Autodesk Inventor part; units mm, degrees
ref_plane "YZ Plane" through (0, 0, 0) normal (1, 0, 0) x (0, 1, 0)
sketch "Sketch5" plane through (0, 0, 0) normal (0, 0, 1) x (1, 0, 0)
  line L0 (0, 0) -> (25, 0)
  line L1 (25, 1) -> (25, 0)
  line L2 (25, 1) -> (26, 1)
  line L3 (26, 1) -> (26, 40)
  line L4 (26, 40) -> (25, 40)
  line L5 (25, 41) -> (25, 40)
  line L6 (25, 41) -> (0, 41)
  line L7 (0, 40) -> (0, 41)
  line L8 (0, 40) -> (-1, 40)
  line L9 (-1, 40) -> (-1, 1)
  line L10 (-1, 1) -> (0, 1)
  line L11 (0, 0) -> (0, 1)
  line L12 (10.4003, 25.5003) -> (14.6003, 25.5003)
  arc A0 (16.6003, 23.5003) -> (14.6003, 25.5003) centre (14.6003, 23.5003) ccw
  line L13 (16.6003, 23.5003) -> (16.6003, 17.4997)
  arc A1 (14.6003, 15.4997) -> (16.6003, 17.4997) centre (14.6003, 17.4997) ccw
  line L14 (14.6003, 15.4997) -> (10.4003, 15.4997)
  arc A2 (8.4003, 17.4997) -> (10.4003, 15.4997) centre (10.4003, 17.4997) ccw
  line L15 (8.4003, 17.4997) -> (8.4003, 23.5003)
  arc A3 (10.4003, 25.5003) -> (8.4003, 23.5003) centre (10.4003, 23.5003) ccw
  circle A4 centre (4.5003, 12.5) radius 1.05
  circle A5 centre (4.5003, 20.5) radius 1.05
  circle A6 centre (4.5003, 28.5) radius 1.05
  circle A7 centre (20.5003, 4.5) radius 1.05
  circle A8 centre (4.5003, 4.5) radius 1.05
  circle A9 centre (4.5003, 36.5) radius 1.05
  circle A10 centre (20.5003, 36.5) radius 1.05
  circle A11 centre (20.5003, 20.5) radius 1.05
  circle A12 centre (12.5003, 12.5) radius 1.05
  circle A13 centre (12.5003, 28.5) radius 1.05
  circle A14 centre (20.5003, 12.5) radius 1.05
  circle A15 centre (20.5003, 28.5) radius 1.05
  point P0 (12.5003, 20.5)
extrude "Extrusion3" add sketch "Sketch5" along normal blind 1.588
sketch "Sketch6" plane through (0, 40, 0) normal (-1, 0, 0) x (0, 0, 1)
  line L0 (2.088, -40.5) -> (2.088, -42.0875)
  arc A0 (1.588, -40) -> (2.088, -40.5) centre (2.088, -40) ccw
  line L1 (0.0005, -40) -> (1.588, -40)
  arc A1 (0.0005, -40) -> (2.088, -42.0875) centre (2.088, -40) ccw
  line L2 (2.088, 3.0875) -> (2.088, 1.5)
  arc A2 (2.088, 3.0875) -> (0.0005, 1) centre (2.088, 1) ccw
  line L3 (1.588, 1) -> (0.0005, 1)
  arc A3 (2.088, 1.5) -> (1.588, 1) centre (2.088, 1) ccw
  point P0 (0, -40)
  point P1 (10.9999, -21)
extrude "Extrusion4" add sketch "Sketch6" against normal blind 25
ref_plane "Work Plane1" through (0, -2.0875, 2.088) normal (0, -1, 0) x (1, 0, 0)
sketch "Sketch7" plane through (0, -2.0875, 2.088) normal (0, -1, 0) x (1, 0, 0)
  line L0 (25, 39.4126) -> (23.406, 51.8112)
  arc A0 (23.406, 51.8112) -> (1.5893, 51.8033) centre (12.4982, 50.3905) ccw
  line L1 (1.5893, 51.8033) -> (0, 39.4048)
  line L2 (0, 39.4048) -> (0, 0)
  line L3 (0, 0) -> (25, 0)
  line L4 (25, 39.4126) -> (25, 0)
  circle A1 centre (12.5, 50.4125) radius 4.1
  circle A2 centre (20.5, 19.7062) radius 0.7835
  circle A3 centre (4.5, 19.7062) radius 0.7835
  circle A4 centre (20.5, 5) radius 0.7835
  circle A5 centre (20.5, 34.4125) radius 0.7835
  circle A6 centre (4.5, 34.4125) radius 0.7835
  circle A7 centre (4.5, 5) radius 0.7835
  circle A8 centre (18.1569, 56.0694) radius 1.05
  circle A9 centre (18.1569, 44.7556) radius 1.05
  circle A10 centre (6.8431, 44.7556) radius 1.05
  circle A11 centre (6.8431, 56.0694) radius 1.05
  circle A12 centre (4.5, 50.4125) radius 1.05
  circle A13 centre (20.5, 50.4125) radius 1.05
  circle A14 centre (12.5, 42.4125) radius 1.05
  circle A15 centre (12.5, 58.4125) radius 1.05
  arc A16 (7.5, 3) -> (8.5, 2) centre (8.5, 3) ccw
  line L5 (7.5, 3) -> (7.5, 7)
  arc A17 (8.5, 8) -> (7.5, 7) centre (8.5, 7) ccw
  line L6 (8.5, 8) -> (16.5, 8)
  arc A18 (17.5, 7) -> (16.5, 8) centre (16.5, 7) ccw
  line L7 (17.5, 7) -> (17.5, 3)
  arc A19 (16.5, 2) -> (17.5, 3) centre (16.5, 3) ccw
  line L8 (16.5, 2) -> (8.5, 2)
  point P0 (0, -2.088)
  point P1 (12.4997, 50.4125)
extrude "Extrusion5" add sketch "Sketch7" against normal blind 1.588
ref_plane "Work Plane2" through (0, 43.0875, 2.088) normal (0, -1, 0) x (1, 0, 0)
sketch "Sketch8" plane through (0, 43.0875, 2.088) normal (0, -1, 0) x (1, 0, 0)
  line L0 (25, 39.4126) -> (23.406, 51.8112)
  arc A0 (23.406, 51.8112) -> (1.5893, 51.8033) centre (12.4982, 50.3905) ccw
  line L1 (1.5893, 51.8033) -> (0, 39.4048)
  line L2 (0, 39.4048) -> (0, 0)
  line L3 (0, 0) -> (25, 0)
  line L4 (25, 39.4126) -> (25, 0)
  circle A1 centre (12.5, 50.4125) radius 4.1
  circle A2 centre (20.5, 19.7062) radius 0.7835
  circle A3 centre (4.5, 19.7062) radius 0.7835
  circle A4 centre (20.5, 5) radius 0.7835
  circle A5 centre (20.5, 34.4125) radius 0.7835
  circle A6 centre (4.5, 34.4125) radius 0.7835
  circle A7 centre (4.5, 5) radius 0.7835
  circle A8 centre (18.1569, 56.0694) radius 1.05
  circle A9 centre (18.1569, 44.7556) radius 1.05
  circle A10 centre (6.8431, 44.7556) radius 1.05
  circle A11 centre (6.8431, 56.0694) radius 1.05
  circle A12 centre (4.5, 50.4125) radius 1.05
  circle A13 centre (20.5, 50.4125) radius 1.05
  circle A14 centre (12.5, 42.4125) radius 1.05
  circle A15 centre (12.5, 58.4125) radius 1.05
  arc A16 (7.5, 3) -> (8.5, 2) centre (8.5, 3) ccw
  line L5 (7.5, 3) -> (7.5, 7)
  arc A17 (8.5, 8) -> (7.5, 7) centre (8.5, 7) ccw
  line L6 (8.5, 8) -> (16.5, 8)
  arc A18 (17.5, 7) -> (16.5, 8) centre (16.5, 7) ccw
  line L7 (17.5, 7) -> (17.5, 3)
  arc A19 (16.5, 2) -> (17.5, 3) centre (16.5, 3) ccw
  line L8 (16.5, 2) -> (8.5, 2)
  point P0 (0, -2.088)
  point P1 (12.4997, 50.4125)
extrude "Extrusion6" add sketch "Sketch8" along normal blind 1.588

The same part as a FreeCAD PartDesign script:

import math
import FreeCAD as App
import Part
import Sketcher

V = App.Vector


def add_polygon(sketch, points):
    """Adds a closed chain of lines whose ends are joined by coincident constraints."""
    first, n = sketch.GeometryCount, len(points)
    for a, b in zip(points, points[1:] + points[:1]):
        sketch.addGeometry(Part.LineSegment(App.Vector(*a, 0), App.Vector(*b, 0)), False)
    for i in range(n):
        sketch.addConstraint(Sketcher.Constraint("Coincident", first + i, 2, first + (i + 1) % n, 1))

doc = App.newDocument("Part")
body = doc.addObject("PartDesign::Body", "Body")

# Sketch on XY plane
sketch1 = body.newObject("Sketcher::SketchObject", "Sketch")
sketch1.AttachmentSupport = (doc.getObject("XY_Plane"), [""])
sketch1.MapMode = "FlatFace"
add_polygon(sketch1, [(0, 1), (0, 0), (25, 0), (25, 1), (26, 1), (26, 40), (25, 40), (25, 41), (0, 41), (0, 40), (-1, 40), (-1, 1)])  # lines 0-11
sketch1.addGeometry(Part.Circle(V(4.5003, 4.5, 0), V(0, 0, 1), 1.05), False)  # 12
sketch1.addGeometry(Part.Circle(V(4.5003, 12.5, 0), V(0, 0, 1), 1.05), False)  # 13
sketch1.addGeometry(Part.Circle(V(20.5003, 4.5, 0), V(0, 0, 1), 1.05), False)  # 14
sketch1.addGeometry(Part.Circle(V(12.5003, 12.5, 0), V(0, 0, 1), 1.05), False)  # 15
sketch1.addGeometry(Part.Circle(V(20.5003, 12.5, 0), V(0, 0, 1), 1.05), False)  # 16
sketch1.addGeometry(Part.Circle(V(4.5003, 20.5, 0), V(0, 0, 1), 1.05), False)  # 17
sketch1.addGeometry(Part.Circle(V(4.5003, 28.5, 0), V(0, 0, 1), 1.05), False)  # 18
sketch1.addGeometry(Part.Circle(V(4.5003, 36.5, 0), V(0, 0, 1), 1.05), False)  # 19
sketch1.addGeometry(Part.ArcOfCircle(Part.Circle(V(10.4003, 23.5003, 0), V(0, 0, 1), 2), math.radians(90), math.radians(180)), False)  # 20
sketch1.addGeometry(Part.LineSegment(V(10.4003, 25.5003, 0), V(14.6003, 25.5003, 0)), False)  # 21
sketch1.addGeometry(Part.ArcOfCircle(Part.Circle(V(14.6003, 23.5003, 0), V(0, 0, 1), 2), math.radians(0), math.radians(90)), False)  # 22
sketch1.addGeometry(Part.LineSegment(V(16.6003, 23.5003, 0), V(16.6003, 17.4997, 0)), False)  # 23
sketch1.addGeometry(Part.ArcOfCircle(Part.Circle(V(14.6003, 17.4997, 0), V(0, 0, 1), 2), math.radians(-90), math.radians(0)), False)  # 24
sketch1.addGeometry(Part.LineSegment(V(14.6003, 15.4997, 0), V(10.4003, 15.4997, 0)), False)  # 25
sketch1.addGeometry(Part.ArcOfCircle(Part.Circle(V(10.4003, 17.4997, 0), V(0, 0, 1), 2), math.radians(180), math.radians(270)), False)  # 26
sketch1.addGeometry(Part.LineSegment(V(8.4003, 17.4997, 0), V(8.4003, 23.5003, 0)), False)  # 27
sketch1.addGeometry(Part.Circle(V(12.5003, 28.5, 0), V(0, 0, 1), 1.05), False)  # 28
sketch1.addGeometry(Part.Circle(V(20.5003, 20.5, 0), V(0, 0, 1), 1.05), False)  # 29
sketch1.addGeometry(Part.Circle(V(20.5003, 28.5, 0), V(0, 0, 1), 1.05), False)  # 30
sketch1.addGeometry(Part.Circle(V(20.5003, 36.5, 0), V(0, 0, 1), 1.05), False)  # 31
sketch1.addConstraint(Sketcher.Constraint("Tangent", 20, 1, 21, 1))
sketch1.addConstraint(Sketcher.Constraint("Tangent", 21, 2, 22, 2))
sketch1.addConstraint(Sketcher.Constraint("Tangent", 22, 1, 23, 1))
sketch1.addConstraint(Sketcher.Constraint("Tangent", 23, 2, 24, 2))
sketch1.addConstraint(Sketcher.Constraint("Tangent", 24, 1, 25, 1))
sketch1.addConstraint(Sketcher.Constraint("Tangent", 25, 2, 26, 2))
sketch1.addConstraint(Sketcher.Constraint("Tangent", 26, 1, 27, 1))
sketch1.addConstraint(Sketcher.Constraint("Tangent", 27, 2, 20, 2))
sketch1.addConstraint(Sketcher.Constraint("Vertical", 0))
sketch1.addConstraint(Sketcher.Constraint("Horizontal", 1))
sketch1.addConstraint(Sketcher.Constraint("Vertical", 2))
sketch1.addConstraint(Sketcher.Constraint("Horizontal", 3))
sketch1.addConstraint(Sketcher.Constraint("Vertical", 4))
sketch1.addConstraint(Sketcher.Constraint("Horizontal", 5))
sketch1.addConstraint(Sketcher.Constraint("Vertical", 6))
sketch1.addConstraint(Sketcher.Constraint("Horizontal", 7))
sketch1.addConstraint(Sketcher.Constraint("Vertical", 8))
sketch1.addConstraint(Sketcher.Constraint("Horizontal", 9))
sketch1.addConstraint(Sketcher.Constraint("Vertical", 10))
sketch1.addConstraint(Sketcher.Constraint("Horizontal", 11))
sketch1.addConstraint(Sketcher.Constraint("Horizontal", 21))
sketch1.addConstraint(Sketcher.Constraint("Vertical", 23))
sketch1.addConstraint(Sketcher.Constraint("Horizontal", 25))
sketch1.addConstraint(Sketcher.Constraint("Vertical", 27))
sketch1.addConstraint(Sketcher.Constraint("Coincident", 0, 2, -1, 1))
sketch1.addConstraint(Sketcher.Constraint("Equal", 12, 13))
sketch1.addConstraint(Sketcher.Constraint("Equal", 13, 14))
sketch1.addConstraint(Sketcher.Constraint("Equal", 14, 15))
sketch1.addConstraint(Sketcher.Constraint("Equal", 15, 16))
sketch1.addConstraint(Sketcher.Constraint("Equal", 16, 17))
sketch1.addConstraint(Sketcher.Constraint("Equal", 17, 18))
sketch1.addConstraint(Sketcher.Constraint("Equal", 18, 19))
sketch1.addConstraint(Sketcher.Constraint("Equal", 20, 22))
sketch1.addConstraint(Sketcher.Constraint("Equal", 22, 24))
sketch1.addConstraint(Sketcher.Constraint("Equal", 24, 26))
sketch1.addConstraint(Sketcher.Constraint("Equal", 19, 28))
sketch1.addConstraint(Sketcher.Constraint("Equal", 28, 29))
sketch1.addConstraint(Sketcher.Constraint("Equal", 29, 30))
sketch1.addConstraint(Sketcher.Constraint("Equal", 30, 31))
sketch1.addConstraint(Sketcher.Constraint("PointOnObject", 7, 2, -2))
sketch1.addConstraint(Sketcher.Constraint("Horizontal", 12, 3, 14, 3))
sketch1.addConstraint(Sketcher.Constraint("Horizontal", 13, 3, 15, 3))
sketch1.addConstraint(Sketcher.Constraint("Horizontal", 15, 3, 16, 3))
sketch1.addConstraint(Sketcher.Constraint("Horizontal", 18, 3, 28, 3))
sketch1.addConstraint(Sketcher.Constraint("Horizontal", 17, 3, 29, 3))
sketch1.addConstraint(Sketcher.Constraint("Horizontal", 28, 3, 30, 3))
sketch1.addConstraint(Sketcher.Constraint("Horizontal", 19, 3, 31, 3))
sketch1.addConstraint(Sketcher.Constraint("Horizontal", 5, 2, 8, 2))
sketch1.addConstraint(Sketcher.Constraint("Horizontal", 3, 2, 10, 2))
sketch1.addConstraint(Sketcher.Constraint("Vertical", 12, 3, 13, 3))
sketch1.addConstraint(Sketcher.Constraint("Vertical", 14, 3, 16, 3))
sketch1.addConstraint(Sketcher.Constraint("Vertical", 13, 3, 17, 3))
sketch1.addConstraint(Sketcher.Constraint("Vertical", 17, 3, 18, 3))
sketch1.addConstraint(Sketcher.Constraint("Vertical", 18, 3, 19, 3))
sketch1.addConstraint(Sketcher.Constraint("Vertical", 15, 3, 28, 3))
sketch1.addConstraint(Sketcher.Constraint("Vertical", 16, 3, 29, 3))
sketch1.addConstraint(Sketcher.Constraint("Vertical", 29, 3, 30, 3))
sketch1.addConstraint(Sketcher.Constraint("Vertical", 30, 3, 31, 3))
sketch1.addConstraint(Sketcher.Constraint("Vertical", 2, 2, 5, 2))
sketch1.addConstraint(Sketcher.Constraint("Equal", 5, 9))
sketch1.addConstraint(Sketcher.Constraint("Equal", 11, 0))
sketch1.addConstraint(Sketcher.Constraint("Equal", 2, 6))
sketch1.addConstraint(Sketcher.Constraint("Radius", 20, 2.0))
sketch1.addConstraint(Sketcher.Constraint("Diameter", 12, 2.1))
sketch1.addConstraint(Sketcher.Constraint("DistanceX", 1, 1, 1, 2, 25.0))
sketch1.addConstraint(Sketcher.Constraint("DistanceX", 3, 1, 3, 2, 1.0))
sketch1.addConstraint(Sketcher.Constraint("DistanceY", 4, 1, 4, 2, 39.0))
sketch1.addConstraint(Sketcher.Constraint("DistanceX", 21, 1, 21, 2, 4.2))
sketch1.addConstraint(Sketcher.Constraint("DistanceY", 12, 3, 13, 3, 8.0))
sketch1.addConstraint(Sketcher.Constraint("DistanceX", 12, 3, 14, 3, 16.0))
sketch1.addConstraint(Sketcher.Constraint("DistanceX", 13, 3, 15, 3, 8.0))
sketch1.addConstraint(Sketcher.Constraint("DistanceY", 13, 3, 17, 3, 8.0))
sketch1.addConstraint(Sketcher.Constraint("DistanceY", 17, 3, 18, 3, 8.0))
sketch1.addConstraint(Sketcher.Constraint("DistanceY", 18, 3, 19, 3, 8.0))
sketch1.addConstraint(Sketcher.Constraint("DistanceY", -1, 1, 12, 3, 4.5))
sketch1.addConstraint(Sketcher.Constraint("DistanceX", 17, 3, 20, 3, 5.9))
sketch1.addConstraint(Sketcher.Constraint("DistanceY", 23, 2, 23, 1, 6.0006))
sketch1.addConstraint(Sketcher.Constraint("DistanceX", -1, 1, 12, 3, 4.5003))
sketch1.addConstraint(Sketcher.Constraint("DistanceY", -1, 1, 20, 3, 23.5003))
pad1 = body.newObject("PartDesign::Pad", "Pad")
pad1.Profile = sketch1
pad1.Length = 1.588

# Sketch on YZ plane
sketch2 = body.newObject("Sketcher::SketchObject", "Sketch001")
sketch2.AttachmentSupport = (doc.getObject("YZ_Plane"), [""])
sketch2.MapMode = "FlatFace"
sketch2.addGeometry(Part.LineSegment(V(-2.0875, 2.088, 0), V(-0.5, 2.088, 0)), False)
sketch2.addGeometry(Part.ArcOfCircle(Part.Circle(V(0, 2.088, 0), V(0, 0, 1), 0.5), math.radians(180), math.radians(270)), False)
sketch2.addGeometry(Part.LineSegment(V(0, 1.588, 0), V(0, 0.0005, 0)), False)
sketch2.addGeometry(Part.ArcOfCircle(Part.Circle(V(0, 2.088, 0), V(0, 0, 1), 2.0875), math.radians(180), math.radians(270)), False)
sketch2.addGeometry(Part.LineSegment(V(41.5, 2.088, 0), V(43.0875, 2.088, 0)), False)
sketch2.addGeometry(Part.ArcOfCircle(Part.Circle(V(41, 2.088, 0), V(0, 0, 1), 2.0875), math.radians(-90), math.radians(0)), False)
sketch2.addGeometry(Part.LineSegment(V(41, 0.0005, 0), V(41, 1.588, 0)), False)
sketch2.addGeometry(Part.ArcOfCircle(Part.Circle(V(41, 2.088, 0), V(0, 0, 1), 0.5), math.radians(-90), math.radians(0)), False)
sketch2.addConstraint(Sketcher.Constraint("Coincident", 0, 2, 1, 1))
sketch2.addConstraint(Sketcher.Constraint("Coincident", 1, 2, 2, 1))
sketch2.addConstraint(Sketcher.Constraint("Coincident", 2, 2, 3, 2))
sketch2.addConstraint(Sketcher.Constraint("Coincident", 3, 1, 0, 1))
sketch2.addConstraint(Sketcher.Constraint("Coincident", 4, 2, 5, 2))
sketch2.addConstraint(Sketcher.Constraint("Coincident", 5, 1, 6, 1))
sketch2.addConstraint(Sketcher.Constraint("Coincident", 6, 2, 7, 1))
sketch2.addConstraint(Sketcher.Constraint("Coincident", 7, 2, 4, 1))
sketch2.addConstraint(Sketcher.Constraint("Horizontal", 0))
sketch2.addConstraint(Sketcher.Constraint("Vertical", 2))
sketch2.addConstraint(Sketcher.Constraint("Horizontal", 4))
sketch2.addConstraint(Sketcher.Constraint("Vertical", 6))
sketch2.addConstraint(Sketcher.Constraint("Coincident", 3, 3, 1, 3))
sketch2.addConstraint(Sketcher.Constraint("Coincident", 7, 3, 5, 3))
sketch2.addConstraint(Sketcher.Constraint("Equal", 3, 5))
sketch2.addConstraint(Sketcher.Constraint("Equal", 1, 7))
sketch2.addConstraint(Sketcher.Constraint("PointOnObject", 1, 3, -2))
sketch2.addConstraint(Sketcher.Constraint("PointOnObject", 1, 2, -2))
sketch2.addConstraint(Sketcher.Constraint("Horizontal", 3, 3, 5, 3))
sketch2.addConstraint(Sketcher.Constraint("Horizontal", 7, 3, 0, 2))
sketch2.addConstraint(Sketcher.Constraint("Horizontal", 3, 1, 4, 2))
sketch2.addConstraint(Sketcher.Constraint("Vertical", 7, 3, 5, 1))
sketch2.addConstraint(Sketcher.Constraint("Radius", 1, 0.5))
sketch2.addConstraint(Sketcher.Constraint("DistanceX", -1, 1, 5, 3, 41.0))
sketch2.addConstraint(Sketcher.Constraint("Radius", 3, 2.0875))
sketch2.addConstraint(Sketcher.Constraint("DistanceY", -1, 1, 1, 3, 2.088))
pad2 = body.newObject("PartDesign::Pad", "Pad001")
pad2.Profile = sketch2
pad2.Length = 25

# Sketch on XZ plane
sketch3 = body.newObject("Sketcher::SketchObject", "Sketch002")
sketch3.AttachmentSupport = (doc.getObject("XZ_Plane"), [""])
sketch3.MapMode = "FlatFace"
sketch3.AttachmentOffset = App.Placement(V(0, 0, 2.0875), App.Rotation())
sketch3.addGeometry(Part.LineSegment(V(25, 2.088, 0), V(25, 41.5006, 0)), False)
sketch3.addGeometry(Part.LineSegment(V(25, 41.5006, 0), V(23.406, 53.8992, 0)), False)
sketch3.addGeometry(Part.ArcOfCircle(Part.Circle(V(12.4982, 52.4785, 0), V(0, 0, 1), 10.999931), math.radians(7.420786), math.radians(172.620758)), False)
sketch3.addGeometry(Part.LineSegment(V(1.5893, 53.8913, 0), V(0, 41.4928, 0)), False)
sketch3.addGeometry(Part.LineSegment(V(0, 41.4928, 0), V(0, 2.088, 0)), False)
sketch3.addGeometry(Part.LineSegment(V(0, 2.088, 0), V(25, 2.088, 0)), False)
sketch3.addGeometry(Part.Circle(V(4.5, 7.088, 0), V(0, 0, 1), 0.7835), False)
sketch3.addGeometry(Part.Circle(V(4.5, 21.7942, 0), V(0, 0, 1), 0.7835), False)
sketch3.addGeometry(Part.ArcOfCircle(Part.Circle(V(8.5, 5.088, 0), V(0, 0, 1), 1), math.radians(180), math.radians(270)), False)
sketch3.addGeometry(Part.LineSegment(V(7.5, 5.088, 0), V(7.5, 9.088, 0)), False)
sketch3.addGeometry(Part.ArcOfCircle(Part.Circle(V(8.5, 9.088, 0), V(0, 0, 1), 1), math.radians(90), math.radians(180)), False)
sketch3.addGeometry(Part.LineSegment(V(8.5, 10.088, 0), V(16.5, 10.088, 0)), False)
sketch3.addGeometry(Part.ArcOfCircle(Part.Circle(V(16.5, 9.088, 0), V(0, 0, 1), 1), math.radians(0), math.radians(90)), False)
sketch3.addGeometry(Part.LineSegment(V(17.5, 9.088, 0), V(17.5, 5.088, 0)), False)
sketch3.addGeometry(Part.ArcOfCircle(Part.Circle(V(16.5, 5.088, 0), V(0, 0, 1), 1), math.radians(-90), math.radians(0)), False)
sketch3.addGeometry(Part.LineSegment(V(16.5, 4.088, 0), V(8.5, 4.088, 0)), False)
sketch3.addGeometry(Part.Circle(V(20.5, 7.088, 0), V(0, 0, 1), 0.7835), False)
sketch3.addGeometry(Part.Circle(V(20.5, 21.7942, 0), V(0, 0, 1), 0.7835), False)
sketch3.addGeometry(Part.Circle(V(4.5, 36.5005, 0), V(0, 0, 1), 0.7835), False)
sketch3.addGeometry(Part.Circle(V(6.8431, 46.8436, 0), V(0, 0, 1), 1.05), False)
sketch3.addGeometry(Part.Circle(V(4.5, 52.5005, 0), V(0, 0, 1), 1.05), False)
sketch3.addGeometry(Part.Circle(V(6.8431, 58.1574, 0), V(0, 0, 1), 1.05), False)
sketch3.addGeometry(Part.Circle(V(12.5, 44.5005, 0), V(0, 0, 1), 1.05), False)
sketch3.addGeometry(Part.Circle(V(18.1569, 46.8436, 0), V(0, 0, 1), 1.05), False)
sketch3.addGeometry(Part.Circle(V(20.5, 36.5005, 0), V(0, 0, 1), 0.7835), False)
sketch3.addGeometry(Part.Circle(V(12.5, 52.5005, 0), V(0, 0, 1), 4.1), False)
sketch3.addGeometry(Part.Circle(V(12.5, 60.5005, 0), V(0, 0, 1), 1.05), False)
sketch3.addGeometry(Part.Circle(V(18.1569, 58.1574, 0), V(0, 0, 1), 1.05), False)
sketch3.addGeometry(Part.Circle(V(20.5, 52.5005, 0), V(0, 0, 1), 1.05), False)
sketch3.addConstraint(Sketcher.Constraint("Coincident", 0, 2, 1, 1))
sketch3.addConstraint(Sketcher.Constraint("Coincident", 1, 2, 2, 1))
sketch3.addConstraint(Sketcher.Constraint("Coincident", 2, 2, 3, 1))
sketch3.addConstraint(Sketcher.Constraint("Coincident", 3, 2, 4, 1))
sketch3.addConstraint(Sketcher.Constraint("Coincident", 4, 2, 5, 1))
sketch3.addConstraint(Sketcher.Constraint("Coincident", 5, 2, 0, 1))
sketch3.addConstraint(Sketcher.Constraint("Tangent", 8, 1, 9, 1))
sketch3.addConstraint(Sketcher.Constraint("Tangent", 9, 2, 10, 2))
sketch3.addConstraint(Sketcher.Constraint("Tangent", 10, 1, 11, 1))
sketch3.addConstraint(Sketcher.Constraint("Tangent", 11, 2, 12, 2))
sketch3.addConstraint(Sketcher.Constraint("Tangent", 12, 1, 13, 1))
sketch3.addConstraint(Sketcher.Constraint("Tangent", 13, 2, 14, 2))
sketch3.addConstraint(Sketcher.Constraint("Tangent", 14, 1, 15, 1))
sketch3.addConstraint(Sketcher.Constraint("Tangent", 15, 2, 8, 2))
sketch3.addConstraint(Sketcher.Constraint("Vertical", 0))
sketch3.addConstraint(Sketcher.Constraint("Vertical", 4))
sketch3.addConstraint(Sketcher.Constraint("Horizontal", 5))
sketch3.addConstraint(Sketcher.Constraint("Vertical", 9))
sketch3.addConstraint(Sketcher.Constraint("Horizontal", 11))
sketch3.addConstraint(Sketcher.Constraint("Vertical", 13))
sketch3.addConstraint(Sketcher.Constraint("Horizontal", 15))
sketch3.addConstraint(Sketcher.Constraint("Equal", 6, 7))
sketch3.addConstraint(Sketcher.Constraint("Equal", 8, 10))
sketch3.addConstraint(Sketcher.Constraint("Equal", 10, 12))
sketch3.addConstraint(Sketcher.Constraint("Equal", 12, 14))
sketch3.addConstraint(Sketcher.Constraint("Equal", 7, 16))
sketch3.addConstraint(Sketcher.Constraint("Equal", 16, 17))
sketch3.addConstraint(Sketcher.Constraint("Equal", 17, 18))
sketch3.addConstraint(Sketcher.Constraint("Equal", 19, 20))
sketch3.addConstraint(Sketcher.Constraint("Equal", 20, 21))
sketch3.addConstraint(Sketcher.Constraint("Equal", 21, 22))
sketch3.addConstraint(Sketcher.Constraint("Equal", 22, 23))
sketch3.addConstraint(Sketcher.Constraint("Equal", 18, 24))
sketch3.addConstraint(Sketcher.Constraint("Equal", 23, 26))
sketch3.addConstraint(Sketcher.Constraint("Equal", 26, 27))
sketch3.addConstraint(Sketcher.Constraint("Equal", 27, 28))
sketch3.addConstraint(Sketcher.Constraint("PointOnObject", 3, 2, -2))
sketch3.addConstraint(Sketcher.Constraint("Horizontal", 6, 3, 16, 3))
sketch3.addConstraint(Sketcher.Constraint("Horizontal", 7, 3, 17, 3))
sketch3.addConstraint(Sketcher.Constraint("Horizontal", 19, 3, 23, 3))
sketch3.addConstraint(Sketcher.Constraint("Horizontal", 18, 3, 24, 3))
sketch3.addConstraint(Sketcher.Constraint("Horizontal", 20, 3, 25, 3))
sketch3.addConstraint(Sketcher.Constraint("Horizontal", 21, 3, 27, 3))
sketch3.addConstraint(Sketcher.Constraint("Horizontal", 25, 3, 28, 3))
sketch3.addConstraint(Sketcher.Constraint("Vertical", 6, 3, 7, 3))
sketch3.addConstraint(Sketcher.Constraint("Vertical", 16, 3, 17, 3))
sketch3.addConstraint(Sketcher.Constraint("Vertical", 7, 3, 18, 3))
sketch3.addConstraint(Sketcher.Constraint("Vertical", 18, 3, 20, 3))
sketch3.addConstraint(Sketcher.Constraint("Vertical", 19, 3, 21, 3))
sketch3.addConstraint(Sketcher.Constraint("Vertical", 17, 3, 24, 3))
sketch3.addConstraint(Sketcher.Constraint("Vertical", 22, 3, 25, 3))
sketch3.addConstraint(Sketcher.Constraint("Vertical", 25, 3, 26, 3))
sketch3.addConstraint(Sketcher.Constraint("Vertical", 23, 3, 27, 3))
sketch3.addConstraint(Sketcher.Constraint("Vertical", 24, 3, 28, 3))
sketch3.addConstraint(Sketcher.Constraint("Radius", 2, 11.0))
sketch3.addConstraint(Sketcher.Constraint("Radius", 8, 1.0))
sketch3.addConstraint(Sketcher.Constraint("Diameter", 19, 2.1))
sketch3.addConstraint(Sketcher.Constraint("Diameter", 25, 8.2))
sketch3.addConstraint(Sketcher.Constraint("DistanceX", 5, 1, 5, 2, 25.0))
sketch3.addConstraint(Sketcher.Constraint("DistanceX", 11, 1, 11, 2, 8.0))
sketch3.addConstraint(Sketcher.Constraint("DistanceY", 9, 1, 9, 2, 4.0))
sketch3.addConstraint(Sketcher.Constraint("Diameter", 6, 1.567))
sketch3.addConstraint(Sketcher.Constraint("DistanceX", 6, 3, 8, 3, 4.0))
sketch3.addConstraint(Sketcher.Constraint("DistanceY", 8, 3, 6, 3, 2.0))
sketch3.addConstraint(Sketcher.Constraint("DistanceX", 12, 3, 16, 3, 4.0))
sketch3.addConstraint(Sketcher.Constraint("DistanceY", 18, 3, 20, 3, 16.0))
sketch3.addConstraint(Sketcher.Constraint("DistanceX", 18, 3, 22, 3, 8.0))
sketch3.addConstraint(Sketcher.Constraint("DistanceY", 18, 3, 22, 3, 8.0))
sketch3.addConstraint(Sketcher.Constraint("DistanceY", 25, 3, 26, 3, 8.0))
sketch3.addConstraint(Sketcher.Constraint("DistanceY", 24, 3, 0, 2, 5.0))
sketch3.addConstraint(Sketcher.Constraint("DistanceY", 4, 2, 6, 3, 5.0))
sketch3.addConstraint(Sketcher.Constraint("Distance", 3, 12.5))
sketch3.addConstraint(Sketcher.Constraint("DistanceX", -1, 1, 6, 3, 4.5))
sketch3.addConstraint(Sketcher.Constraint("DistanceY", 0, 1, 0, 2, 39.4126))
sketch3.addConstraint(Sketcher.Constraint("DistanceY", 4, 2, 4, 1, 39.4048))
sketch3.addConstraint(Sketcher.Constraint("DistanceY", -1, 1, 6, 3, 7.088))
sketch3.addConstraint(Sketcher.Constraint("DistanceX", -1, 1, 19, 3, 6.843))
sketch3.addConstraint(Sketcher.Constraint("DistanceX", -1, 1, 23, 3, 18.157))
sketch3.addConstraint(Sketcher.Constraint("DistanceX", -1, 1, 1, 2, 23.406))
sketch3.addConstraint(Sketcher.Constraint("DistanceY", 18, 3, 2, 3, 15.978))
sketch3.addConstraint(Sketcher.Constraint("DistanceX", 19, 3, 2, 3, 5.655))
sketch3.addConstraint(Sketcher.Constraint("DistanceY", 19, 3, 2, 3, 5.635))
sketch3.addConstraint(Sketcher.Constraint("DistanceY", 20, 3, 21, 3, 5.657))
sketch3.addConstraint(Sketcher.Constraint("DistanceY", -1, 1, 7, 3, 21.7942))
pad3 = body.newObject("PartDesign::Pad", "Pad002")
pad3.Profile = sketch3
pad3.Length = 1.588
pad3.Reversed = True

# Sketch on XZ plane
sketch4 = body.newObject("Sketcher::SketchObject", "Sketch003")
sketch4.AttachmentSupport = (doc.getObject("XZ_Plane"), [""])
sketch4.MapMode = "FlatFace"
sketch4.AttachmentOffset = App.Placement(V(0, 0, -43.0875), App.Rotation())
sketch4.addGeometry(Part.LineSegment(V(25, 2.088, 0), V(25, 41.5006, 0)), False)
sketch4.addGeometry(Part.LineSegment(V(25, 41.5006, 0), V(23.406, 53.8992, 0)), False)
sketch4.addGeometry(Part.ArcOfCircle(Part.Circle(V(12.4982, 52.4785, 0), V(0, 0, 1), 10.999931), math.radians(7.420786), math.radians(172.620758)), False)
sketch4.addGeometry(Part.LineSegment(V(1.5893, 53.8913, 0), V(0, 41.4928, 0)), False)
sketch4.addGeometry(Part.LineSegment(V(0, 41.4928, 0), V(0, 2.088, 0)), False)
sketch4.addGeometry(Part.LineSegment(V(0, 2.088, 0), V(25, 2.088, 0)), False)
sketch4.addGeometry(Part.Circle(V(4.5, 7.088, 0), V(0, 0, 1), 0.7835), False)
sketch4.addGeometry(Part.Circle(V(4.5, 21.7942, 0), V(0, 0, 1), 0.7835), False)
sketch4.addGeometry(Part.ArcOfCircle(Part.Circle(V(8.5, 5.088, 0), V(0, 0, 1), 1), math.radians(180), math.radians(270)), False)
sketch4.addGeometry(Part.LineSegment(V(7.5, 5.088, 0), V(7.5, 9.088, 0)), False)
sketch4.addGeometry(Part.ArcOfCircle(Part.Circle(V(8.5, 9.088, 0), V(0, 0, 1), 1), math.radians(90), math.radians(180)), False)
sketch4.addGeometry(Part.LineSegment(V(8.5, 10.088, 0), V(16.5, 10.088, 0)), False)
sketch4.addGeometry(Part.ArcOfCircle(Part.Circle(V(16.5, 9.088, 0), V(0, 0, 1), 1), math.radians(0), math.radians(90)), False)
sketch4.addGeometry(Part.LineSegment(V(17.5, 9.088, 0), V(17.5, 5.088, 0)), False)
sketch4.addGeometry(Part.ArcOfCircle(Part.Circle(V(16.5, 5.088, 0), V(0, 0, 1), 1), math.radians(-90), math.radians(0)), False)
sketch4.addGeometry(Part.LineSegment(V(16.5, 4.088, 0), V(8.5, 4.088, 0)), False)
sketch4.addGeometry(Part.Circle(V(20.5, 7.088, 0), V(0, 0, 1), 0.7835), False)
sketch4.addGeometry(Part.Circle(V(20.5, 21.7942, 0), V(0, 0, 1), 0.7835), False)
sketch4.addGeometry(Part.Circle(V(4.5, 36.5005, 0), V(0, 0, 1), 0.7835), False)
sketch4.addGeometry(Part.Circle(V(6.8431, 46.8436, 0), V(0, 0, 1), 1.05), False)
sketch4.addGeometry(Part.Circle(V(4.5, 52.5005, 0), V(0, 0, 1), 1.05), False)
sketch4.addGeometry(Part.Circle(V(6.8431, 58.1574, 0), V(0, 0, 1), 1.05), False)
sketch4.addGeometry(Part.Circle(V(12.5, 44.5005, 0), V(0, 0, 1), 1.05), False)
sketch4.addGeometry(Part.Circle(V(18.1569, 46.8436, 0), V(0, 0, 1), 1.05), False)
sketch4.addGeometry(Part.Circle(V(20.5, 36.5005, 0), V(0, 0, 1), 0.7835), False)
sketch4.addGeometry(Part.Circle(V(12.5, 52.5005, 0), V(0, 0, 1), 4.1), False)
sketch4.addGeometry(Part.Circle(V(12.5, 60.5005, 0), V(0, 0, 1), 1.05), False)
sketch4.addGeometry(Part.Circle(V(18.1569, 58.1574, 0), V(0, 0, 1), 1.05), False)
sketch4.addGeometry(Part.Circle(V(20.5, 52.5005, 0), V(0, 0, 1), 1.05), False)
sketch4.addConstraint(Sketcher.Constraint("Coincident", 0, 2, 1, 1))
sketch4.addConstraint(Sketcher.Constraint("Coincident", 1, 2, 2, 1))
sketch4.addConstraint(Sketcher.Constraint("Coincident", 2, 2, 3, 1))
sketch4.addConstraint(Sketcher.Constraint("Coincident", 3, 2, 4, 1))
sketch4.addConstraint(Sketcher.Constraint("Coincident", 4, 2, 5, 1))
sketch4.addConstraint(Sketcher.Constraint("Coincident", 5, 2, 0, 1))
sketch4.addConstraint(Sketcher.Constraint("Tangent", 8, 1, 9, 1))
sketch4.addConstraint(Sketcher.Constraint("Tangent", 9, 2, 10, 2))
sketch4.addConstraint(Sketcher.Constraint("Tangent", 10, 1, 11, 1))
sketch4.addConstraint(Sketcher.Constraint("Tangent", 11, 2, 12, 2))
sketch4.addConstraint(Sketcher.Constraint("Tangent", 12, 1, 13, 1))
sketch4.addConstraint(Sketcher.Constraint("Tangent", 13, 2, 14, 2))
sketch4.addConstraint(Sketcher.Constraint("Tangent", 14, 1, 15, 1))
sketch4.addConstraint(Sketcher.Constraint("Tangent", 15, 2, 8, 2))
sketch4.addConstraint(Sketcher.Constraint("Vertical", 0))
sketch4.addConstraint(Sketcher.Constraint("Vertical", 4))
sketch4.addConstraint(Sketcher.Constraint("Horizontal", 5))
sketch4.addConstraint(Sketcher.Constraint("Vertical", 9))
sketch4.addConstraint(Sketcher.Constraint("Horizontal", 11))
sketch4.addConstraint(Sketcher.Constraint("Vertical", 13))
sketch4.addConstraint(Sketcher.Constraint("Horizontal", 15))
sketch4.addConstraint(Sketcher.Constraint("Equal", 6, 7))
sketch4.addConstraint(Sketcher.Constraint("Equal", 8, 10))
sketch4.addConstraint(Sketcher.Constraint("Equal", 10, 12))
sketch4.addConstraint(Sketcher.Constraint("Equal", 12, 14))
sketch4.addConstraint(Sketcher.Constraint("Equal", 7, 16))
sketch4.addConstraint(Sketcher.Constraint("Equal", 16, 17))
sketch4.addConstraint(Sketcher.Constraint("Equal", 17, 18))
sketch4.addConstraint(Sketcher.Constraint("Equal", 19, 20))
sketch4.addConstraint(Sketcher.Constraint("Equal", 20, 21))
sketch4.addConstraint(Sketcher.Constraint("Equal", 21, 22))
sketch4.addConstraint(Sketcher.Constraint("Equal", 22, 23))
sketch4.addConstraint(Sketcher.Constraint("Equal", 18, 24))
sketch4.addConstraint(Sketcher.Constraint("Equal", 23, 26))
sketch4.addConstraint(Sketcher.Constraint("Equal", 26, 27))
sketch4.addConstraint(Sketcher.Constraint("Equal", 27, 28))
sketch4.addConstraint(Sketcher.Constraint("PointOnObject", 3, 2, -2))
sketch4.addConstraint(Sketcher.Constraint("Horizontal", 6, 3, 16, 3))
sketch4.addConstraint(Sketcher.Constraint("Horizontal", 7, 3, 17, 3))
sketch4.addConstraint(Sketcher.Constraint("Horizontal", 19, 3, 23, 3))
sketch4.addConstraint(Sketcher.Constraint("Horizontal", 18, 3, 24, 3))
sketch4.addConstraint(Sketcher.Constraint("Horizontal", 20, 3, 25, 3))
sketch4.addConstraint(Sketcher.Constraint("Horizontal", 21, 3, 27, 3))
sketch4.addConstraint(Sketcher.Constraint("Horizontal", 25, 3, 28, 3))
sketch4.addConstraint(Sketcher.Constraint("Vertical", 6, 3, 7, 3))
sketch4.addConstraint(Sketcher.Constraint("Vertical", 16, 3, 17, 3))
sketch4.addConstraint(Sketcher.Constraint("Vertical", 7, 3, 18, 3))
sketch4.addConstraint(Sketcher.Constraint("Vertical", 18, 3, 20, 3))
sketch4.addConstraint(Sketcher.Constraint("Vertical", 19, 3, 21, 3))
sketch4.addConstraint(Sketcher.Constraint("Vertical", 17, 3, 24, 3))
sketch4.addConstraint(Sketcher.Constraint("Vertical", 22, 3, 25, 3))
sketch4.addConstraint(Sketcher.Constraint("Vertical", 25, 3, 26, 3))
sketch4.addConstraint(Sketcher.Constraint("Vertical", 23, 3, 27, 3))
sketch4.addConstraint(Sketcher.Constraint("Vertical", 24, 3, 28, 3))
sketch4.addConstraint(Sketcher.Constraint("Radius", 2, 11.0))
sketch4.addConstraint(Sketcher.Constraint("Radius", 8, 1.0))
sketch4.addConstraint(Sketcher.Constraint("Diameter", 19, 2.1))
sketch4.addConstraint(Sketcher.Constraint("Diameter", 25, 8.2))
sketch4.addConstraint(Sketcher.Constraint("DistanceX", 5, 1, 5, 2, 25.0))
sketch4.addConstraint(Sketcher.Constraint("DistanceX", 11, 1, 11, 2, 8.0))
sketch4.addConstraint(Sketcher.Constraint("DistanceY", 9, 1, 9, 2, 4.0))
sketch4.addConstraint(Sketcher.Constraint("Diameter", 6, 1.567))
sketch4.addConstraint(Sketcher.Constraint("DistanceX", 6, 3, 8, 3, 4.0))
sketch4.addConstraint(Sketcher.Constraint("DistanceY", 8, 3, 6, 3, 2.0))
sketch4.addConstraint(Sketcher.Constraint("DistanceX", 12, 3, 16, 3, 4.0))
sketch4.addConstraint(Sketcher.Constraint("DistanceY", 18, 3, 20, 3, 16.0))
sketch4.addConstraint(Sketcher.Constraint("DistanceX", 18, 3, 22, 3, 8.0))
sketch4.addConstraint(Sketcher.Constraint("DistanceY", 18, 3, 22, 3, 8.0))
sketch4.addConstraint(Sketcher.Constraint("DistanceY", 25, 3, 26, 3, 8.0))
sketch4.addConstraint(Sketcher.Constraint("DistanceY", 24, 3, 0, 2, 5.0))
sketch4.addConstraint(Sketcher.Constraint("DistanceY", 4, 2, 6, 3, 5.0))
sketch4.addConstraint(Sketcher.Constraint("Distance", 3, 12.5))
sketch4.addConstraint(Sketcher.Constraint("DistanceX", -1, 1, 6, 3, 4.5))
sketch4.addConstraint(Sketcher.Constraint("DistanceY", 0, 1, 0, 2, 39.4126))
sketch4.addConstraint(Sketcher.Constraint("DistanceY", 4, 2, 4, 1, 39.4048))
sketch4.addConstraint(Sketcher.Constraint("DistanceY", -1, 1, 6, 3, 7.088))
sketch4.addConstraint(Sketcher.Constraint("DistanceX", -1, 1, 19, 3, 6.843))
sketch4.addConstraint(Sketcher.Constraint("DistanceX", -1, 1, 23, 3, 18.157))
sketch4.addConstraint(Sketcher.Constraint("DistanceX", -1, 1, 1, 2, 23.406))
sketch4.addConstraint(Sketcher.Constraint("DistanceY", 18, 3, 2, 3, 15.978))
sketch4.addConstraint(Sketcher.Constraint("DistanceX", 19, 3, 2, 3, 5.655))
sketch4.addConstraint(Sketcher.Constraint("DistanceY", 19, 3, 2, 3, 5.635))
sketch4.addConstraint(Sketcher.Constraint("DistanceY", 20, 3, 21, 3, 5.657))
sketch4.addConstraint(Sketcher.Constraint("DistanceY", -1, 1, 7, 3, 21.7942))
pad4 = body.newObject("PartDesign::Pad", "Pad003")
pad4.Profile = sketch4
pad4.Length = 1.588

doc.recompute()
